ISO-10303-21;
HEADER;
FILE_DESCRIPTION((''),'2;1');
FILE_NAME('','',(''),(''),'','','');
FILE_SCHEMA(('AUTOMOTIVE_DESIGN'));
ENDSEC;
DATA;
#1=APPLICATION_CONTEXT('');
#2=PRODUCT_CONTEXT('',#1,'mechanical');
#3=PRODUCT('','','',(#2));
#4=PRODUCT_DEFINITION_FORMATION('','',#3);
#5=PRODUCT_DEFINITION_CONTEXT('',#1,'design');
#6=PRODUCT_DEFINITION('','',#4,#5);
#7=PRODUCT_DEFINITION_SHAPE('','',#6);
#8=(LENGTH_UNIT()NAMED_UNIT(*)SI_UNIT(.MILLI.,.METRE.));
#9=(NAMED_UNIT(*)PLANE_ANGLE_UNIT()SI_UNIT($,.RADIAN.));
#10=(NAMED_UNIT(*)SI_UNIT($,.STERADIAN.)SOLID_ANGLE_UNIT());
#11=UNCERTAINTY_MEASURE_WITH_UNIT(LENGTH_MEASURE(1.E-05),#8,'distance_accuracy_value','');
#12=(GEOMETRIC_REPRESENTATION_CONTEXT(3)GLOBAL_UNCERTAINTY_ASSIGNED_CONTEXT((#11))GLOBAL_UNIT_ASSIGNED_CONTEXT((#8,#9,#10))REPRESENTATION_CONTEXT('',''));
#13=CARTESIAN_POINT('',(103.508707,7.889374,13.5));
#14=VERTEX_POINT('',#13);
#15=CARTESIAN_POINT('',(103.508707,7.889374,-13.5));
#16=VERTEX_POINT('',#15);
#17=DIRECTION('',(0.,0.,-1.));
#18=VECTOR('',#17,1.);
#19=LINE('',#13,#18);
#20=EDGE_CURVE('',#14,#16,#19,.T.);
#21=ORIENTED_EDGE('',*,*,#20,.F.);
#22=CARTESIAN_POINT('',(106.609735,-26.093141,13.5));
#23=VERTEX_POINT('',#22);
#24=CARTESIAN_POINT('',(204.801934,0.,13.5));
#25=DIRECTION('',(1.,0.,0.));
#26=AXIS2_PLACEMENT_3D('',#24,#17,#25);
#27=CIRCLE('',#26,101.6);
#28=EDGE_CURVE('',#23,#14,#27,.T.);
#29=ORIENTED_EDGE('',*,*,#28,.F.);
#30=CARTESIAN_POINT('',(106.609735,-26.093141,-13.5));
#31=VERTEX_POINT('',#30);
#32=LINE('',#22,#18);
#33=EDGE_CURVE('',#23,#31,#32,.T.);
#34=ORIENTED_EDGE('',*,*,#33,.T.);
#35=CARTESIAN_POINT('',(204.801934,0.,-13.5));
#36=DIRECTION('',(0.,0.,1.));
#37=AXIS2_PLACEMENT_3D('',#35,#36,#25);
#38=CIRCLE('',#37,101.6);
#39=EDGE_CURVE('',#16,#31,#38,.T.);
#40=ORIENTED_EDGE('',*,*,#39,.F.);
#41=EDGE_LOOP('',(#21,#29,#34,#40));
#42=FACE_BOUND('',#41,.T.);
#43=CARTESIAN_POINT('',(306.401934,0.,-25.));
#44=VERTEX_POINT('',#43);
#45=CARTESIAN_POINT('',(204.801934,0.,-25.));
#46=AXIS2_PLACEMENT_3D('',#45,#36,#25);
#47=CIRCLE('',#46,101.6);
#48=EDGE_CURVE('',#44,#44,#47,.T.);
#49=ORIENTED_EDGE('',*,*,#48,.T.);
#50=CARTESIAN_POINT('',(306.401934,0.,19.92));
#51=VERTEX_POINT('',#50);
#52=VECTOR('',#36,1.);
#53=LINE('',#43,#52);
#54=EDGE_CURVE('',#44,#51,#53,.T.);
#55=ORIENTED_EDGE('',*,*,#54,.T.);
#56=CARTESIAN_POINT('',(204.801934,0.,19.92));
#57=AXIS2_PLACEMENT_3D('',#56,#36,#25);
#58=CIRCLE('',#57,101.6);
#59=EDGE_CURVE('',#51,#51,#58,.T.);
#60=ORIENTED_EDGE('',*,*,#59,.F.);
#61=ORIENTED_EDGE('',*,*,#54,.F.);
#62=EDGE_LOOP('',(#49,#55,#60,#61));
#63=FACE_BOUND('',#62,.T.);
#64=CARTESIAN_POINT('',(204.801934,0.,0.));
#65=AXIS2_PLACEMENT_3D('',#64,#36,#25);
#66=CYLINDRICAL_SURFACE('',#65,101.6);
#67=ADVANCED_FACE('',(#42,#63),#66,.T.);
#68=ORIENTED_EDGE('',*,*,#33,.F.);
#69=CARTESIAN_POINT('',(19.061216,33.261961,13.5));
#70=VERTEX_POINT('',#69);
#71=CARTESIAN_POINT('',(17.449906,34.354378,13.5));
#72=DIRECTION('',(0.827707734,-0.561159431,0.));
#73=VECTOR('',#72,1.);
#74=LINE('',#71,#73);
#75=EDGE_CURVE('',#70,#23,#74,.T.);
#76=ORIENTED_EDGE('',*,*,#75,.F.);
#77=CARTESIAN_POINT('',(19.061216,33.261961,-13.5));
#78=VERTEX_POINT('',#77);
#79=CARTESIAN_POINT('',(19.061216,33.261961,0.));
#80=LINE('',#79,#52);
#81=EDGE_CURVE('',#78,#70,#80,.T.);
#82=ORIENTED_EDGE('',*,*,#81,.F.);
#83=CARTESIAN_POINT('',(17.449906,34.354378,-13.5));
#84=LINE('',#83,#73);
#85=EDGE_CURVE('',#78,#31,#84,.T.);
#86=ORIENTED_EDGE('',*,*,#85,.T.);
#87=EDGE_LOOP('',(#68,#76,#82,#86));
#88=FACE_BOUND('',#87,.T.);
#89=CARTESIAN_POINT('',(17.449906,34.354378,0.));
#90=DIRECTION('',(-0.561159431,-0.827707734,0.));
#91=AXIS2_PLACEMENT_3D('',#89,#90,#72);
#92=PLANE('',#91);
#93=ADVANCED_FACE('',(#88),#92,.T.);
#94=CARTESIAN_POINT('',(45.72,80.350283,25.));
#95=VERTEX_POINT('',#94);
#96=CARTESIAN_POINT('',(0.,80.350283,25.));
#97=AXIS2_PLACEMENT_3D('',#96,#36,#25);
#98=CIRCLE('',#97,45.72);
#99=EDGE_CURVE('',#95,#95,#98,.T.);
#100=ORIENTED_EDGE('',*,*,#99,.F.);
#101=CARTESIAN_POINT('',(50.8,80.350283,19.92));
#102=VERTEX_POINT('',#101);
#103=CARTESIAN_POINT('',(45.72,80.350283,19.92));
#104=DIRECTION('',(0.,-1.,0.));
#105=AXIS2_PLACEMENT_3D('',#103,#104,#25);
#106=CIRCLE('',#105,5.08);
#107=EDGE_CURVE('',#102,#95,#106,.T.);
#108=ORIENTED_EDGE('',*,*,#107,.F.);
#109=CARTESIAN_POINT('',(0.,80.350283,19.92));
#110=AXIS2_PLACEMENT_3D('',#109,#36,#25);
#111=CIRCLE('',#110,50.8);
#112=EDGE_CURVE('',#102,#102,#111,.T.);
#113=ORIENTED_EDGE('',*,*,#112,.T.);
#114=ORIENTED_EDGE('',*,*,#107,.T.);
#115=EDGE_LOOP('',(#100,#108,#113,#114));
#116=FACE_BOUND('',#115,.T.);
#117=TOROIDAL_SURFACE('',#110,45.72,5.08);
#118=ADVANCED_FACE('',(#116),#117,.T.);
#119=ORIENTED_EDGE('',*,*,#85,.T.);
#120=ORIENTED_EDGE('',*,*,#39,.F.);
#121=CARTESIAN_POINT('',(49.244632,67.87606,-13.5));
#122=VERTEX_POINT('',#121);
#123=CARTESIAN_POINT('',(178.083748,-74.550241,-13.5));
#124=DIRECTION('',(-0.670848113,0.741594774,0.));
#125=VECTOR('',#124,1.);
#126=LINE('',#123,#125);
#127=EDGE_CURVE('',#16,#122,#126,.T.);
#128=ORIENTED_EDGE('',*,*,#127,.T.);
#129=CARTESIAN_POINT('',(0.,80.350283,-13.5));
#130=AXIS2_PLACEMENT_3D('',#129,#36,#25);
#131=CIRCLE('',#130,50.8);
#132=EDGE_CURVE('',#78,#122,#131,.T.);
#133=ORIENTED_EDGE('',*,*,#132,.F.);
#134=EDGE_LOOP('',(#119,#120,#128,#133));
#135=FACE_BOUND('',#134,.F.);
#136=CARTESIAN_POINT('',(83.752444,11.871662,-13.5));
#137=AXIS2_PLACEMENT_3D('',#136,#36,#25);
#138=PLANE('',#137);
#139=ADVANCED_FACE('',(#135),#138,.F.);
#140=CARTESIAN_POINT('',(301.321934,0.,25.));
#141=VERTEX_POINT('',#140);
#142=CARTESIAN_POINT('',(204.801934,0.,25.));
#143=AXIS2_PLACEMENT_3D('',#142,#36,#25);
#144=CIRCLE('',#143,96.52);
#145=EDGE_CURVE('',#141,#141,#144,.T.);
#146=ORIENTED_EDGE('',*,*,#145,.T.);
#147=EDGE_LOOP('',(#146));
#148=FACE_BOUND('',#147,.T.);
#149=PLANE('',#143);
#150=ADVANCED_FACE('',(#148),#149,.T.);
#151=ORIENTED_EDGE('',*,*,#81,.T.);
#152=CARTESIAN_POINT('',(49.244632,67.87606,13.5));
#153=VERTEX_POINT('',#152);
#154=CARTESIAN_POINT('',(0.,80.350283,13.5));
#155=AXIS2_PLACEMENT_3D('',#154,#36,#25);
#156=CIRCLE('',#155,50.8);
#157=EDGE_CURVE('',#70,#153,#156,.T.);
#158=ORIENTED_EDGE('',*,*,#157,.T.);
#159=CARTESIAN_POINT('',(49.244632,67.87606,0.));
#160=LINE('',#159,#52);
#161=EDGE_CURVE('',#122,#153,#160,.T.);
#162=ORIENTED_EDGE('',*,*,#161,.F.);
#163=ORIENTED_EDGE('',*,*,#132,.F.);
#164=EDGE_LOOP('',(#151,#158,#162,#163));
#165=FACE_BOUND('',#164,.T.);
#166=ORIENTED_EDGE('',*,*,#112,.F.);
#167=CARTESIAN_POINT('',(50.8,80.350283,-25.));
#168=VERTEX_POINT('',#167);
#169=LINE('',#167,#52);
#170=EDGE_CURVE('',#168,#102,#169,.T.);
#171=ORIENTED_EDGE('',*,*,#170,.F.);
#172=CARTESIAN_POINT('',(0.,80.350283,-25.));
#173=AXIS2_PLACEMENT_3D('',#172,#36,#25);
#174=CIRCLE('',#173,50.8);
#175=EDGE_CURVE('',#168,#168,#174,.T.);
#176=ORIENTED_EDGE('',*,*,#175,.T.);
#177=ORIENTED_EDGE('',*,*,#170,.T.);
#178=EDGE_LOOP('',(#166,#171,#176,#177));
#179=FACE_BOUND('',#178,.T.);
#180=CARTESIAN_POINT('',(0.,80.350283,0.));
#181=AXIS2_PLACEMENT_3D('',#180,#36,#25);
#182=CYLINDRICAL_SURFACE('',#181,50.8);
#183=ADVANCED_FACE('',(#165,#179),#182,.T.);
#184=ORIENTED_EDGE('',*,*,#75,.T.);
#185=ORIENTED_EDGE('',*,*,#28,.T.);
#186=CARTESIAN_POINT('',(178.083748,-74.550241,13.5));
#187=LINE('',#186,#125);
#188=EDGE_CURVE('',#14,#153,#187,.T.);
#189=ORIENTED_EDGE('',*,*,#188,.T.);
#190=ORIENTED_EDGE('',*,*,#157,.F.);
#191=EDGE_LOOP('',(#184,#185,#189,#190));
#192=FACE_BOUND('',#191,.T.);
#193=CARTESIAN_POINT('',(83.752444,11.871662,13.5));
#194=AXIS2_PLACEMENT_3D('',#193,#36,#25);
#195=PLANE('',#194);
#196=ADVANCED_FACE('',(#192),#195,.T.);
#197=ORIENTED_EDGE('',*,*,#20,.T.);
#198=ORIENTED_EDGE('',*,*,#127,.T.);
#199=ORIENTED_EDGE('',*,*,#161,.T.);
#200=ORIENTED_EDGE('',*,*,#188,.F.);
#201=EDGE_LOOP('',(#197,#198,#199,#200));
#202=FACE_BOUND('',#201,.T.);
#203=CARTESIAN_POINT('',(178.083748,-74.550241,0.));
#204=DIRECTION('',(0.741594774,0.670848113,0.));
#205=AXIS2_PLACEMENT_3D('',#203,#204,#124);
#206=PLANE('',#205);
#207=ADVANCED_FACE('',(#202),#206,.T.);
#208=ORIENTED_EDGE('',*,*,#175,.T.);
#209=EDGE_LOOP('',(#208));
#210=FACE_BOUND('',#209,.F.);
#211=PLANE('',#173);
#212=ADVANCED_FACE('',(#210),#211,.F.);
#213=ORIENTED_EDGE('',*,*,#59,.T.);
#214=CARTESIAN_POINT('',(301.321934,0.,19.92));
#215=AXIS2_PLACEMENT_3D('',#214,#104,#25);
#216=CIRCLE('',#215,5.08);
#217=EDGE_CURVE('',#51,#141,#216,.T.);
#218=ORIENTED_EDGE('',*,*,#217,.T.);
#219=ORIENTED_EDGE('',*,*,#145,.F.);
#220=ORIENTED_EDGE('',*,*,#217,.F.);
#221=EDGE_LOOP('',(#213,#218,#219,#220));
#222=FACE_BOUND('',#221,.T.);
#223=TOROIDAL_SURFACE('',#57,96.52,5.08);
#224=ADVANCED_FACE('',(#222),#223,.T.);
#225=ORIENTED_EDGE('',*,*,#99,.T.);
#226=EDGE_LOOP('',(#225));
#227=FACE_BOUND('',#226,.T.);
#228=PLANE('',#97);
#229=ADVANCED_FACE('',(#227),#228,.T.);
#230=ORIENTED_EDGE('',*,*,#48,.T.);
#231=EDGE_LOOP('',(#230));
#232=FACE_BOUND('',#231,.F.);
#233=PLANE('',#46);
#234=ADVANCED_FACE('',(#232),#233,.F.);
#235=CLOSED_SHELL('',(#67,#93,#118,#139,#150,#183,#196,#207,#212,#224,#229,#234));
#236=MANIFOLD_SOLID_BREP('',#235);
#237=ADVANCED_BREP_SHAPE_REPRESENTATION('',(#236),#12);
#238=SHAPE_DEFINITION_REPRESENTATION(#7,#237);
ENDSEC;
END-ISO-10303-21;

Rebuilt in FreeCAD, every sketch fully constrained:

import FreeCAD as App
import Part
import Sketcher
from FreeCAD import Vector
Q = App.Units.Quantity


def edges_at(feature, points):
    """Names of the edges that pass closest to the given points."""
    edges = feature.Shape.Edges
    near = lambda p: min(range(len(edges)), key=lambda i: edges[i].distToShape(Part.Vertex(*p))[0])
    return sorted({f"Edge{near(p) + 1}" for p in points})

doc = App.newDocument("Part")
body = doc.addObject("PartDesign::Body", "Body")
body.AllowCompound = True

# Sketch on XY plane
sketch1 = body.newObject("Sketcher::SketchObject", "Sketch")
sketch1.AttachmentSupport = (doc.getObject("XY_Plane"), [""])
sketch1.MapMode = "FlatFace"
sketch1.addGeometry([
    Part.Circle(Vector(205, 0, 0), Vector(0, 0, 1), 102),
    Part.Circle(Vector(0, 80, 0), Vector(0, 0, 1), 51),
], False)
sketch1.addConstraint([
    Sketcher.Constraint("PointOnObject", 0, 3, -1),
    Sketcher.Constraint("PointOnObject", 1, 3, -2),
    Sketcher.Constraint("Diameter", 0, Q("8 in")),
    Sketcher.Constraint("Diameter", 1, Q("4 in")),
    Sketcher.Constraint("DistanceX", -1, 1, 0, 3, Q("204.801934 mm")),
    Sketcher.Constraint("DistanceY", -1, 1, 1, 3, Q("80.350283 mm")),
])
pad1 = body.newObject("PartDesign::Pad", "Pad")
pad1.Profile = sketch1
pad1.Length = 50
pad1.Midplane = True
doc.recompute()

fillet = body.newObject("PartDesign::Fillet", "Fillet")
fillet.Base = (pad1, edges_at(pad1, [(-50.8, 80.35, 25), (103.202, 0, 25)]))
fillet.Radius = Q("0.2 in")

# Sketch on XY plane
sketch2 = body.newObject("Sketcher::SketchObject", "Sketch001")
sketch2.AttachmentSupport = (doc.getObject("XY_Plane"), [""])
sketch2.MapMode = "FlatFace"
sketch2.addGeometry([
    Part.LineSegment(Vector(10, 111, 0), Vector(17, 34, 0)),
    Part.LineSegment(Vector(17, 34, 0), Vector(178, -75, 0)),
    Part.LineSegment(Vector(178, -75, 0), Vector(10, 111, 0)),
], False)
sketch2.addConstraint([
    Sketcher.Constraint("Coincident", 0, 2, 1, 1),
    Sketcher.Constraint("Coincident", 1, 2, 2, 1),
    Sketcher.Constraint("Coincident", 2, 2, 0, 1),
    Sketcher.Constraint("DistanceX", 2, 2, 0, 2, Q("6.962602 mm")),
    Sketcher.Constraint("DistanceY", 0, 2, 2, 2, Q("76.366301 mm")),
    Sketcher.Constraint("DistanceX", -1, 1, 1, 2, Q("178.083748 mm")),
    Sketcher.Constraint("DistanceY", 1, 2, -1, 1, Q("74.550241 mm")),
    Sketcher.Constraint("DistanceY", -1, 1, 2, 2, Q("110.720679 mm")),
    Sketcher.Constraint("Distance", 1, Q("194.070727 mm")),
])
pad2 = body.newObject("PartDesign::Pad", "Pad001")
pad2.Profile = sketch2
pad2.Length = 27
pad2.Midplane = True

doc.recompute()
